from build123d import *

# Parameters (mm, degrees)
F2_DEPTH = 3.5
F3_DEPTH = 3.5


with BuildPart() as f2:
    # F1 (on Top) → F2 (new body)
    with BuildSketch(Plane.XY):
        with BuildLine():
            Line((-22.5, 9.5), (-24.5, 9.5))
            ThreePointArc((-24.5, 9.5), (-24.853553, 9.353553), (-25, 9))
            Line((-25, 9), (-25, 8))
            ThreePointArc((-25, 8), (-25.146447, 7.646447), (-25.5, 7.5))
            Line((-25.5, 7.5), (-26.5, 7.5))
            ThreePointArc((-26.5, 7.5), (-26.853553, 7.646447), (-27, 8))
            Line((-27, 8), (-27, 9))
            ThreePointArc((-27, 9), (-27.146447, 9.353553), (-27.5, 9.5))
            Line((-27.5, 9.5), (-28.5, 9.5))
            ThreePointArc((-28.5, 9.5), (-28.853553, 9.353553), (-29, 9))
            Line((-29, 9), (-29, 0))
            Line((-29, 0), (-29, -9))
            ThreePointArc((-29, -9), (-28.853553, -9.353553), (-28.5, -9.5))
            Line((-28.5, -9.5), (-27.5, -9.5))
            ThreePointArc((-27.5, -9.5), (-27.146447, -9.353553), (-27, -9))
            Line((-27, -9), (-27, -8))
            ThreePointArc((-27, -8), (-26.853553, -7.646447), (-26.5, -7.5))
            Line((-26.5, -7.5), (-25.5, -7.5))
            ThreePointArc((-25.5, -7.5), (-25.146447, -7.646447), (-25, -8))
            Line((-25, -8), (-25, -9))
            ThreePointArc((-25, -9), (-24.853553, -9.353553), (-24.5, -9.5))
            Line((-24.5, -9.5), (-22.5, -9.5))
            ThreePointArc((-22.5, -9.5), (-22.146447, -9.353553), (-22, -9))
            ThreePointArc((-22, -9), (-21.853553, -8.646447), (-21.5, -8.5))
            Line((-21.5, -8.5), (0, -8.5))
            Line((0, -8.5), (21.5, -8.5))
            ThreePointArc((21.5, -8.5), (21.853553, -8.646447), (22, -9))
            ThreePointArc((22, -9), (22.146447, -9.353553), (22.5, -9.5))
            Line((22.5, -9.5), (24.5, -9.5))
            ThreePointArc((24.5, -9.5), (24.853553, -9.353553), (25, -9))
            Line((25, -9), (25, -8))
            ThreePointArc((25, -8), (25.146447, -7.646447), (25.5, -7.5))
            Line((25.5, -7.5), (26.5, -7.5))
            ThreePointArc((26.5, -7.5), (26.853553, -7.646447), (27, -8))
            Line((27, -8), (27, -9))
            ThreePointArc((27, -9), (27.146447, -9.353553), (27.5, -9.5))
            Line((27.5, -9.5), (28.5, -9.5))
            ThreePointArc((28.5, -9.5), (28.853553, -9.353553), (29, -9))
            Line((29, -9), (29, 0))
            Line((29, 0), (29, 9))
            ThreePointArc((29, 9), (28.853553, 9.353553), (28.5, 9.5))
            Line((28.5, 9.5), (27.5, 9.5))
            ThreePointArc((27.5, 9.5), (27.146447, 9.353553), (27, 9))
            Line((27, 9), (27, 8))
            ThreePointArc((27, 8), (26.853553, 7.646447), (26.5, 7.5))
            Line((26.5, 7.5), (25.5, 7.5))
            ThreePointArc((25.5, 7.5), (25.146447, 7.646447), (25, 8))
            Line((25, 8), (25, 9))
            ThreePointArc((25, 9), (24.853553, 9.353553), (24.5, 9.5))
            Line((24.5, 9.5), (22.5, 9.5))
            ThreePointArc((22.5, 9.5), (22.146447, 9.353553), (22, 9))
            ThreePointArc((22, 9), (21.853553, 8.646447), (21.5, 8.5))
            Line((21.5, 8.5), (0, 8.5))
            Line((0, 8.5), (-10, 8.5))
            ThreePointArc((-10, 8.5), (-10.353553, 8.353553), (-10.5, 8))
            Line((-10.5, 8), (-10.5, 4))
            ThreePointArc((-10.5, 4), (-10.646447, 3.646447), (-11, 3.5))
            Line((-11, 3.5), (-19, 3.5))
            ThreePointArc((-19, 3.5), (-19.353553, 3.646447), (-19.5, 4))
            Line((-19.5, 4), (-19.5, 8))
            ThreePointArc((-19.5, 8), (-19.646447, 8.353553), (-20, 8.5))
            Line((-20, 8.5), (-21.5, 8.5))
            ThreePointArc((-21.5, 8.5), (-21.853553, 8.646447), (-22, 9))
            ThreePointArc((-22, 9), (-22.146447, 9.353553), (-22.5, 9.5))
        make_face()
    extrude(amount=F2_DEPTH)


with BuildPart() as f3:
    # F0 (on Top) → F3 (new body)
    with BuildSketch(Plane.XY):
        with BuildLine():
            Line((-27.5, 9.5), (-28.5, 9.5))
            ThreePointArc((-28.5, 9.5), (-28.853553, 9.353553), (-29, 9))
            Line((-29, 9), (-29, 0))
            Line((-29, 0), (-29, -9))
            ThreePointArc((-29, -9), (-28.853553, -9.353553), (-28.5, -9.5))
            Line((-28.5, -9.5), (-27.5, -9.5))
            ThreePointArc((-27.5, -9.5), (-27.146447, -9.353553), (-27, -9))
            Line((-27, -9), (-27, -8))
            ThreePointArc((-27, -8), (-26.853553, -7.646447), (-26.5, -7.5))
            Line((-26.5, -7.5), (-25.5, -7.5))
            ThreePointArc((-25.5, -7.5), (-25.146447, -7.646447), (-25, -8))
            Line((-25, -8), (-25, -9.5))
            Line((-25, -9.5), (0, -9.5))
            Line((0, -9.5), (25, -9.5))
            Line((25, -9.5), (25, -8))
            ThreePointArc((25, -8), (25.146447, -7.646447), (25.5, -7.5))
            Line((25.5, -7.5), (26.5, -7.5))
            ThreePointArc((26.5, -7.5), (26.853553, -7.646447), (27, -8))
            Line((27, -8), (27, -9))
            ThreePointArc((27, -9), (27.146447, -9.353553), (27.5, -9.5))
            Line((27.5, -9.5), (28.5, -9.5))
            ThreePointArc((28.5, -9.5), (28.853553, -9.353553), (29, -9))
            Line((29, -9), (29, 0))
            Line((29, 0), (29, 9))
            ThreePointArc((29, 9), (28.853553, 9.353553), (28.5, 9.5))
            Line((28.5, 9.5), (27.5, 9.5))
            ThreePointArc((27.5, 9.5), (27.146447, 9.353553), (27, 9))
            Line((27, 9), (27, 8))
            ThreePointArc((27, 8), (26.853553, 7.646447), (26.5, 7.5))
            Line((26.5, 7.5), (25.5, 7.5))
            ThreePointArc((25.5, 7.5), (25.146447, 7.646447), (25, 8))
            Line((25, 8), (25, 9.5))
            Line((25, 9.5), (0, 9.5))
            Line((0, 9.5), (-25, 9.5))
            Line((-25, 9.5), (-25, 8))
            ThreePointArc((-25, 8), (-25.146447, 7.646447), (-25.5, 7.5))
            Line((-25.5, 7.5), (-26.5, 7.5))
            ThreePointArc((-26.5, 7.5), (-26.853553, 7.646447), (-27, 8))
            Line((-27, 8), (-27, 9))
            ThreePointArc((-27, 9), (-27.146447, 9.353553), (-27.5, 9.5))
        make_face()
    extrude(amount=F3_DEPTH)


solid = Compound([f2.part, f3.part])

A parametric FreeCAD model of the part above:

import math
import FreeCAD as App
import Part
import Sketcher
from FreeCAD import Vector

doc = App.newDocument("Part")
body = doc.addObject("PartDesign::Body", "Body")

# Sketch on XY plane
sketch1 = body.newObject("Sketcher::SketchObject", "Sketch")
sketch1.AttachmentSupport = (doc.getObject("XY_Plane"), [""])
sketch1.MapMode = "FlatFace"
sketch1.addGeometry([
    Part.LineSegment(Vector(-22.5, 9.5, 0), Vector(-24.5, 9.5, 0)),  # 0
    Part.ArcOfCircle(Part.Circle(Vector(-24.499999, 8.999999, 0), Vector(0, 0, 1), 0.500001), math.radians(90.000153), math.radians(179.999847)),  # 1
    Part.LineSegment(Vector(-25, 9, 0), Vector(-25, 8, 0)),  # 2
    Part.ArcOfCircle(Part.Circle(Vector(-25.500001, 8.000001, 0), Vector(0, 0, 1), 0.500001), math.radians(-89.999847), math.radians(-0.000153)),  # 3
    Part.LineSegment(Vector(-25.5, 7.5, 0), Vector(-26.5, 7.5, 0)),  # 4
    Part.ArcOfCircle(Part.Circle(Vector(-26.499999, 8.000001, 0), Vector(0, 0, 1), 0.500001), math.radians(-179.999847), math.radians(-90.000153)),  # 5
    Part.LineSegment(Vector(-27, 8, 0), Vector(-27, 9, 0)),  # 6
    Part.ArcOfCircle(Part.Circle(Vector(-27.500001, 8.999999, 0), Vector(0, 0, 1), 0.500001), math.radians(0.000153), math.radians(89.999847)),  # 7
    Part.LineSegment(Vector(-27.5, 9.5, 0), Vector(-28.5, 9.5, 0)),  # 8
    Part.ArcOfCircle(Part.Circle(Vector(-28.499999, 8.999999, 0), Vector(0, 0, 1), 0.500001), math.radians(90.000153), math.radians(179.999847)),  # 9
    Part.LineSegment(Vector(-29, 9, 0), Vector(-29, -9, 0)),  # 10
    Part.ArcOfCircle(Part.Circle(Vector(-28.499999, -8.999999, 0), Vector(0, 0, 1), 0.500001), math.radians(-179.999847), math.radians(-90.000153)),  # 11
    Part.LineSegment(Vector(-28.5, -9.5, 0), Vector(-27.5, -9.5, 0)),  # 12
    Part.ArcOfCircle(Part.Circle(Vector(-27.500001, -8.999999, 0), Vector(0, 0, 1), 0.500001), math.radians(-89.999847), math.radians(-0.000153)),  # 13
    Part.LineSegment(Vector(-27, -9, 0), Vector(-27, -8, 0)),  # 14
    Part.ArcOfCircle(Part.Circle(Vector(-26.499999, -8.000001, 0), Vector(0, 0, 1), 0.500001), math.radians(90.000153), math.radians(179.999847)),  # 15
    Part.LineSegment(Vector(-26.5, -7.5, 0), Vector(-25.5, -7.5, 0)),  # 16
    Part.ArcOfCircle(Part.Circle(Vector(-25.500001, -8.000001, 0), Vector(0, 0, 1), 0.500001), math.radians(0.000153), math.radians(89.999847)),  # 17
    Part.LineSegment(Vector(-25, -8, 0), Vector(-25, -9, 0)),  # 18
    Part.ArcOfCircle(Part.Circle(Vector(-24.499999, -8.999999, 0), Vector(0, 0, 1), 0.500001), math.radians(-179.999847), math.radians(-90.000153)),  # 19
    Part.LineSegment(Vector(-24.5, -9.5, 0), Vector(-22.5, -9.5, 0)),  # 20
    Part.ArcOfCircle(Part.Circle(Vector(-22.500001, -8.999999, 0), Vector(0, 0, 1), 0.500001), math.radians(-89.999847), math.radians(-0.000153)),  # 21
    Part.ArcOfCircle(Part.Circle(Vector(-21.499999, -9.000001, 0), Vector(0, 0, 1), 0.500001), math.radians(90.000153), math.radians(179.999847)),  # 22
    Part.LineSegment(Vector(-21.5, -8.5, 0), Vector(21.5, -8.5, 0)),  # 23
    Part.ArcOfCircle(Part.Circle(Vector(21.499999, -9.000001, 0), Vector(0, 0, 1), 0.500001), math.radians(0.000153), math.radians(89.999847)),  # 24
    Part.ArcOfCircle(Part.Circle(Vector(22.500001, -8.999999, 0), Vector(0, 0, 1), 0.500001), math.radians(-179.999847), math.radians(-90.000153)),  # 25
    Part.LineSegment(Vector(22.5, -9.5, 0), Vector(24.5, -9.5, 0)),  # 26
    Part.ArcOfCircle(Part.Circle(Vector(24.499999, -8.999999, 0), Vector(0, 0, 1), 0.500001), math.radians(-89.999847), math.radians(-0.000153)),  # 27
    Part.LineSegment(Vector(25, -9, 0), Vector(25, -8, 0)),  # 28
    Part.ArcOfCircle(Part.Circle(Vector(25.500001, -8.000001, 0), Vector(0, 0, 1), 0.500001), math.radians(90.000153), math.radians(179.999847)),  # 29
    Part.LineSegment(Vector(25.5, -7.5, 0), Vector(26.5, -7.5, 0)),  # 30
    Part.ArcOfCircle(Part.Circle(Vector(26.499999, -8.000001, 0), Vector(0, 0, 1), 0.500001), math.radians(0.000153), math.radians(89.999847)),  # 31
    Part.LineSegment(Vector(27, -8, 0), Vector(27, -9, 0)),  # 32
    Part.ArcOfCircle(Part.Circle(Vector(27.500001, -8.999999, 0), Vector(0, 0, 1), 0.500001), math.radians(-179.999847), math.radians(-90.000153)),  # 33
    Part.LineSegment(Vector(27.5, -9.5, 0), Vector(28.5, -9.5, 0)),  # 34
    Part.ArcOfCircle(Part.Circle(Vector(28.499999, -8.999999, 0), Vector(0, 0, 1), 0.500001), math.radians(-89.999847), math.radians(-0.000153)),  # 35
    Part.LineSegment(Vector(29, -9, 0), Vector(29, 9, 0)),  # 36
    Part.ArcOfCircle(Part.Circle(Vector(28.499999, 8.999999, 0), Vector(0, 0, 1), 0.500001), math.radians(0.000153), math.radians(89.999847)),  # 37
    Part.LineSegment(Vector(28.5, 9.5, 0), Vector(27.5, 9.5, 0)),  # 38
    Part.ArcOfCircle(Part.Circle(Vector(27.500001, 8.999999, 0), Vector(0, 0, 1), 0.500001), math.radians(90.000153), math.radians(179.999847)),  # 39
    Part.LineSegment(Vector(27, 9, 0), Vector(27, 8, 0)),  # 40
    Part.ArcOfCircle(Part.Circle(Vector(26.499999, 8.000001, 0), Vector(0, 0, 1), 0.500001), math.radians(-89.999847), math.radians(-0.000153)),  # 41
    Part.LineSegment(Vector(26.5, 7.5, 0), Vector(25.5, 7.5, 0)),  # 42
    Part.ArcOfCircle(Part.Circle(Vector(25.500001, 8.000001, 0), Vector(0, 0, 1), 0.500001), math.radians(-179.999847), math.radians(-90.000153)),  # 43
    Part.LineSegment(Vector(25, 8, 0), Vector(25, 9, 0)),  # 44
    Part.ArcOfCircle(Part.Circle(Vector(24.499999, 8.999999, 0), Vector(0, 0, 1), 0.500001), math.radians(0.000153), math.radians(89.999847)),  # 45
    Part.LineSegment(Vector(24.5, 9.5, 0), Vector(22.5, 9.5, 0)),  # 46
    Part.ArcOfCircle(Part.Circle(Vector(22.500001, 8.999999, 0), Vector(0, 0, 1), 0.500001), math.radians(90.000153), math.radians(179.999847)),  # 47
    Part.ArcOfCircle(Part.Circle(Vector(21.499999, 9.000001, 0), Vector(0, 0, 1), 0.500001), math.radians(-89.999847), math.radians(-0.000153)),  # 48
    Part.LineSegment(Vector(21.5, 8.5, 0), Vector(-10, 8.5, 0)),  # 49
    Part.ArcOfCircle(Part.Circle(Vector(-9.999999, 7.999999, 0), Vector(0, 0, 1), 0.500001), math.radians(90.000153), math.radians(179.999847)),  # 50
    Part.LineSegment(Vector(-10.5, 8, 0), Vector(-10.5, 4, 0)),  # 51
    Part.ArcOfCircle(Part.Circle(Vector(-11.000001, 4.000001, 0), Vector(0, 0, 1), 0.500001), math.radians(-89.999847), math.radians(-0.000153)),  # 52
    Part.LineSegment(Vector(-11, 3.5, 0), Vector(-19, 3.5, 0)),  # 53
    Part.ArcOfCircle(Part.Circle(Vector(-18.999999, 4.000001, 0), Vector(0, 0, 1), 0.500001), math.radians(-179.999847), math.radians(-90.000153)),  # 54
    Part.LineSegment(Vector(-19.5, 4, 0), Vector(-19.5, 8, 0)),  # 55
    Part.ArcOfCircle(Part.Circle(Vector(-20.000001, 7.999999, 0), Vector(0, 0, 1), 0.500001), math.radians(0.000153), math.radians(89.999847)),  # 56
    Part.LineSegment(Vector(-20, 8.5, 0), Vector(-21.5, 8.5, 0)),  # 57
    Part.ArcOfCircle(Part.Circle(Vector(-21.499999, 9.000001, 0), Vector(0, 0, 1), 0.500001), math.radians(-179.999847), math.radians(-90.000153)),  # 58
    Part.ArcOfCircle(Part.Circle(Vector(-22.500001, 8.999999, 0), Vector(0, 0, 1), 0.500001), math.radians(0.000153), math.radians(89.999847)),  # 59
], False)
sketch1.addConstraint([
    Sketcher.Constraint("Coincident", 0, 2, 1, 1),
    Sketcher.Constraint("Coincident", 1, 2, 2, 1),
    Sketcher.Constraint("Coincident", 2, 2, 3, 2),
    Sketcher.Constraint("Coincident", 3, 1, 4, 1),
    Sketcher.Constraint("Coincident", 4, 2, 5, 2),
    Sketcher.Constraint("Coincident", 5, 1, 6, 1),
    Sketcher.Constraint("Coincident", 6, 2, 7, 1),
    Sketcher.Constraint("Coincident", 7, 2, 8, 1),
    Sketcher.Constraint("Coincident", 8, 2, 9, 1),
    Sketcher.Constraint("Coincident", 9, 2, 10, 1),
    Sketcher.Constraint("Coincident", 10, 2, 11, 1),
    Sketcher.Constraint("Coincident", 11, 2, 12, 1),
    Sketcher.Constraint("Coincident", 12, 2, 13, 1),
    Sketcher.Constraint("Coincident", 13, 2, 14, 1),
    Sketcher.Constraint("Coincident", 14, 2, 15, 2),
    Sketcher.Constraint("Coincident", 15, 1, 16, 1),
    Sketcher.Constraint("Coincident", 16, 2, 17, 2),
    Sketcher.Constraint("Coincident", 17, 1, 18, 1),
    Sketcher.Constraint("Coincident", 18, 2, 19, 1),
    Sketcher.Constraint("Coincident", 19, 2, 20, 1),
    Sketcher.Constraint("Coincident", 20, 2, 21, 1),
    Sketcher.Constraint("Tangent", 21, 2, 22, 2),
    Sketcher.Constraint("Coincident", 22, 1, 23, 1),
    Sketcher.Constraint("Coincident", 23, 2, 24, 2),
    Sketcher.Constraint("Tangent", 24, 1, 25, 1),
    Sketcher.Constraint("Coincident", 25, 2, 26, 1),
    Sketcher.Constraint("Coincident", 26, 2, 27, 1),
    Sketcher.Constraint("Coincident", 27, 2, 28, 1),
    Sketcher.Constraint("Coincident", 28, 2, 29, 2),
    Sketcher.Constraint("Coincident", 29, 1, 30, 1),
    Sketcher.Constraint("Coincident", 30, 2, 31, 2),
    Sketcher.Constraint("Coincident", 31, 1, 32, 1),
    Sketcher.Constraint("Coincident", 32, 2, 33, 1),
    Sketcher.Constraint("Coincident", 33, 2, 34, 1),
    Sketcher.Constraint("Coincident", 34, 2, 35, 1),
    Sketcher.Constraint("Coincident", 35, 2, 36, 1),
    Sketcher.Constraint("Coincident", 36, 2, 37, 1),
    Sketcher.Constraint("Coincident", 37, 2, 38, 1),
    Sketcher.Constraint("Coincident", 38, 2, 39, 1),
    Sketcher.Constraint("Coincident", 39, 2, 40, 1),
    Sketcher.Constraint("Coincident", 40, 2, 41, 2),
    Sketcher.Constraint("Coincident", 41, 1, 42, 1),
    Sketcher.Constraint("Coincident", 42, 2, 43, 2),
    Sketcher.Constraint("Coincident", 43, 1, 44, 1),
    Sketcher.Constraint("Coincident", 44, 2, 45, 1),
    Sketcher.Constraint("Coincident", 45, 2, 46, 1),
    Sketcher.Constraint("Coincident", 46, 2, 47, 1),
    Sketcher.Constraint("Tangent", 47, 2, 48, 2),
    Sketcher.Constraint("Coincident", 48, 1, 49, 1),
    Sketcher.Constraint("Coincident", 49, 2, 50, 1),
    Sketcher.Constraint("Coincident", 50, 2, 51, 1),
    Sketcher.Constraint("Coincident", 51, 2, 52, 2),
    Sketcher.Constraint("Coincident", 52, 1, 53, 1),
    Sketcher.Constraint("Coincident", 53, 2, 54, 2),
    Sketcher.Constraint("Coincident", 54, 1, 55, 1),
    Sketcher.Constraint("Coincident", 55, 2, 56, 1),
    Sketcher.Constraint("Coincident", 56, 2, 57, 1),
    Sketcher.Constraint("Coincident", 57, 2, 58, 2),
    Sketcher.Constraint("Tangent", 58, 1, 59, 1),
    Sketcher.Constraint("Coincident", 59, 2, 0, 1),
    Sketcher.Constraint("Horizontal", 0),
    Sketcher.Constraint("Vertical", 2),
    Sketcher.Constraint("Horizontal", 4),
    Sketcher.Constraint("Vertical", 6),
    Sketcher.Constraint("Horizontal", 8),
    Sketcher.Constraint("Vertical", 10),
    Sketcher.Constraint("Horizontal", 12),
    Sketcher.Constraint("Vertical", 14),
    Sketcher.Constraint("Horizontal", 16),
    Sketcher.Constraint("Vertical", 18),
    Sketcher.Constraint("Horizontal", 20),
    Sketcher.Constraint("Horizontal", 23),
    Sketcher.Constraint("Horizontal", 26),
    Sketcher.Constraint("Vertical", 28),
    Sketcher.Constraint("Horizontal", 30),
    Sketcher.Constraint("Vertical", 32),
    Sketcher.Constraint("Horizontal", 34),
    Sketcher.Constraint("Vertical", 36),
    Sketcher.Constraint("Horizontal", 38),
    Sketcher.Constraint("Vertical", 40),
    Sketcher.Constraint("Horizontal", 42),
    Sketcher.Constraint("Vertical", 44),
    Sketcher.Constraint("Horizontal", 46),
    Sketcher.Constraint("Horizontal", 49),
    Sketcher.Constraint("Vertical", 51),
    Sketcher.Constraint("Horizontal", 53),
    Sketcher.Constraint("Vertical", 55),
    Sketcher.Constraint("Horizontal", 57),
    Sketcher.Constraint("Equal", 1, 3),
    Sketcher.Constraint("Equal", 3, 5),
    Sketcher.Constraint("Equal", 5, 7),
    Sketcher.Constraint("Equal", 7, 9),
    Sketcher.Constraint("Equal", 9, 11),
    Sketcher.Constraint("Equal", 11, 13),
    Sketcher.Constraint("Equal", 13, 15),
    Sketcher.Constraint("Equal", 15, 17),
    Sketcher.Constraint("Equal", 17, 19),
    Sketcher.Constraint("Equal", 19, 21),
    Sketcher.Constraint("Equal", 21, 22),
    Sketcher.Constraint("Equal", 22, 24),
    Sketcher.Constraint("Equal", 24, 25),
    Sketcher.Constraint("Equal", 25, 27),
    Sketcher.Constraint("Equal", 27, 29),
    Sketcher.Constraint("Equal", 29, 31),
    Sketcher.Constraint("Equal", 31, 33),
    Sketcher.Constraint("Equal", 33, 35),
    Sketcher.Constraint("Equal", 35, 37),
    Sketcher.Constraint("Equal", 37, 39),
    Sketcher.Constraint("Equal", 39, 41),
    Sketcher.Constraint("Equal", 41, 43),
    Sketcher.Constraint("Equal", 43, 45),
    Sketcher.Constraint("Equal", 45, 47),
    Sketcher.Constraint("Equal", 47, 48),
    Sketcher.Constraint("Equal", 48, 50),
    Sketcher.Constraint("Equal", 50, 52),
    Sketcher.Constraint("Equal", 52, 54),
    Sketcher.Constraint("Equal", 54, 56),
    Sketcher.Constraint("Equal", 56, 58),
    Sketcher.Constraint("Equal", 58, 59),
    Sketcher.Constraint("Symmetric", 1, 3, 27, 3, -1, 1),
    Sketcher.Constraint("Symmetric", 5, 3, 31, 3, -1, 1),
    Sketcher.Constraint("Symmetric", 9, 3, 35, 3, -1, 1),
    Sketcher.Constraint("Symmetric", 13, 3, 39, 3, -1, 1),
    Sketcher.Constraint("Symmetric", 17, 3, 43, 3, -1, 1),
    Sketcher.Constraint("Symmetric", 21, 3, 47, 3, -1, 1),
    Sketcher.Constraint("Symmetric", 24, 3, 58, 3, -1, 1),
    Sketcher.Constraint("Symmetric", 22, 1, 48, 1, -1, 1),
    Sketcher.Constraint("Symmetric", 21, 3, 25, 3, -2),
    Sketcher.Constraint("Symmetric", 17, 3, 29, 3, -2),
    Sketcher.Constraint("Symmetric", 13, 3, 33, 3, -2),
    Sketcher.Constraint("Horizontal", 1, 3, 7, 3),
    Sketcher.Constraint("Horizontal", 59, 3, 1, 2),
    Sketcher.Constraint("Horizontal", 56, 3, 2, 2),
    Sketcher.Constraint("Horizontal", 2, 2, 5, 1),
    Sketcher.Constraint("Horizontal", 1, 2, 6, 2),
    Sketcher.Constraint("Horizontal", 6, 2, 9, 2),
    Sketcher.Constraint("Horizontal", 35, 3, 10, 2),
    Sketcher.Constraint("Horizontal", 10, 2, 13, 2),
    Sketcher.Constraint("Horizontal", 31, 3, 14, 2),
    Sketcher.Constraint("Horizontal", 14, 2, 17, 1),
    Sketcher.Constraint("Horizontal", 13, 2, 18, 2),
    Sketcher.Constraint("Horizontal", 18, 2, 21, 2),
    Sketcher.Constraint("Horizontal", 24, 1, 27, 2),
    Sketcher.Constraint("Horizontal", 17, 1, 28, 2),
    Sketcher.Constraint("Horizontal", 28, 2, 31, 1),
    Sketcher.Constraint("Horizontal", 27, 2, 32, 2),
    Sketcher.Constraint("Horizontal", 32, 2, 35, 2),
    Sketcher.Constraint("Horizontal", 9, 2, 36, 2),
    Sketcher.Constraint("Horizontal", 36, 2, 39, 2),
    Sketcher.Constraint("Horizontal", 5, 1, 40, 2),
    Sketcher.Constraint("Horizontal", 40, 2, 43, 1),
    Sketcher.Constraint("Horizontal", 39, 2, 44, 2),
    Sketcher.Constraint("Horizontal", 43, 1, 50, 2),
    Sketcher.Constraint("Horizontal", 54, 3, 51, 2),
    Sketcher.Constraint("Horizontal", 51, 2, 54, 1),
    Sketcher.Constraint("Horizontal", 50, 2, 55, 2),
    Sketcher.Constraint("Vertical", 19, 3, 0, 2),
    Sketcher.Constraint("Vertical", 17, 3, 3, 1),
    Sketcher.Constraint("Vertical", 15, 3, 4, 2),
    Sketcher.Constraint("Vertical", 13, 3, 7, 2),
    Sketcher.Constraint("Vertical", 11, 3, 8, 2),
    Sketcher.Constraint("Vertical", 8, 2, 11, 2),
    Sketcher.Constraint("Vertical", 7, 2, 12, 2),
    Sketcher.Constraint("Vertical", 4, 2, 15, 1),
    Sketcher.Constraint("Vertical", 3, 1, 16, 2),
    Sketcher.Constraint("Vertical", 0, 2, 19, 2),
    Sketcher.Constraint("Vertical", 59, 3, 20, 2),
    Sketcher.Constraint("Vertical", 58, 3, 22, 1),
    Sketcher.Constraint("Vertical", 48, 3, 23, 2),
    Sketcher.Constraint("Vertical", 47, 3, 25, 2),
    Sketcher.Constraint("Vertical", 45, 3, 26, 2),
    Sketcher.Constraint("Vertical", 43, 3, 29, 1),
    Sketcher.Constraint("Vertical", 41, 3, 30, 2),
    Sketcher.Constraint("Vertical", 39, 3, 33, 2),
    Sketcher.Constraint("Vertical", 37, 3, 34, 2),
    Sketcher.Constraint("Vertical", 34, 2, 37, 2),
    Sketcher.Constraint("Vertical", 33, 2, 38, 2),
    Sketcher.Constraint("Vertical", 30, 2, 41, 1),
    Sketcher.Constraint("Vertical", 29, 1, 42, 2),
    Sketcher.Constraint("Vertical", 26, 2, 45, 2),
    Sketcher.Constraint("Vertical", 25, 2, 46, 2),
    Sketcher.Constraint("Vertical", 50, 3, 49, 2),
    Sketcher.Constraint("Vertical", 54, 3, 53, 2),
    Sketcher.Constraint("Vertical", 22, 1, 57, 2),
    Sketcher.Constraint("Vertical", 20, 2, 59, 2),
    Sketcher.Constraint("Equal", 4, 8),
    Sketcher.Constraint("Equal", 42, 2),
    Sketcher.Constraint("Equal", 6, 14),
    Sketcher.Constraint("Radius", 1, 0.500001),
    Sketcher.Constraint("DistanceX", 0, 2, 0, 1, 2.0),
    Sketcher.Constraint("DistanceX", 23, 1, 23, 2, 43.0),
    Sketcher.Constraint("DistanceX", 53, 2, 53, 1, 8.0),
    Sketcher.Constraint("DistanceY", 10, 2, 10, 1, 18.0),
    Sketcher.Constraint("DistanceY", 51, 2, 51, 1, 4.0),
    Sketcher.Constraint("DistanceX", 49, 2, 49, 1, 31.5),
    Sketcher.Constraint("DistanceX", 57, 2, 57, 1, 1.5),
    Sketcher.Constraint("DistanceX", 54, 3, -1, 1, 18.999999),
])
pad1 = body.newObject("PartDesign::Pad", "Pad")
pad1.Profile = sketch1
pad1.Length = 3.5
body2 = doc.addObject("PartDesign::Body", "Body001")

# Sketch on XY plane
sketch2 = body2.newObject("Sketcher::SketchObject", "Sketch001")
sketch2.AttachmentSupport = (doc.getObject("XY_Plane001"), [""])
sketch2.MapMode = "FlatFace"
sketch2.addGeometry([
    Part.LineSegment(Vector(-27.5, 9.5, 0), Vector(-28.5, 9.5, 0)),  # 0
    Part.ArcOfCircle(Part.Circle(Vector(-28.499999, 8.999999, 0), Vector(0, 0, 1), 0.500001), math.radians(90.000153), math.radians(179.999847)),  # 1
    Part.LineSegment(Vector(-29, 9, 0), Vector(-29, -9, 0)),  # 2
    Part.ArcOfCircle(Part.Circle(Vector(-28.499999, -8.999999, 0), Vector(0, 0, 1), 0.500001), math.radians(-179.999847), math.radians(-90.000153)),  # 3
    Part.LineSegment(Vector(-28.5, -9.5, 0), Vector(-27.5, -9.5, 0)),  # 4
    Part.ArcOfCircle(Part.Circle(Vector(-27.500001, -8.999999, 0), Vector(0, 0, 1), 0.500001), math.radians(-89.999847), math.radians(-0.000153)),  # 5
    Part.LineSegment(Vector(-27, -9, 0), Vector(-27, -8, 0)),  # 6
    Part.ArcOfCircle(Part.Circle(Vector(-26.499999, -8.000001, 0), Vector(0, 0, 1), 0.500001), math.radians(90.000153), math.radians(179.999847)),  # 7
    Part.LineSegment(Vector(-26.5, -7.5, 0), Vector(-25.5, -7.5, 0)),  # 8
    Part.ArcOfCircle(Part.Circle(Vector(-25.500001, -8.000001, 0), Vector(0, 0, 1), 0.500001), math.radians(0.000153), math.radians(89.999847)),  # 9
    Part.LineSegment(Vector(-25, -8, 0), Vector(-25, -9.5, 0)),  # 10
    Part.LineSegment(Vector(-25, -9.5, 0), Vector(25, -9.5, 0)),  # 11
    Part.LineSegment(Vector(25, -9.5, 0), Vector(25, -8, 0)),  # 12
    Part.ArcOfCircle(Part.Circle(Vector(25.500001, -8.000001, 0), Vector(0, 0, 1), 0.500001), math.radians(90.000153), math.radians(179.999847)),  # 13
    Part.LineSegment(Vector(25.5, -7.5, 0), Vector(26.5, -7.5, 0)),  # 14
    Part.ArcOfCircle(Part.Circle(Vector(26.499999, -8.000001, 0), Vector(0, 0, 1), 0.500001), math.radians(0.000153), math.radians(89.999847)),  # 15
    Part.LineSegment(Vector(27, -8, 0), Vector(27, -9, 0)),  # 16
    Part.ArcOfCircle(Part.Circle(Vector(27.500001, -8.999999, 0), Vector(0, 0, 1), 0.500001), math.radians(-179.999847), math.radians(-90.000153)),  # 17
    Part.LineSegment(Vector(27.5, -9.5, 0), Vector(28.5, -9.5, 0)),  # 18
    Part.ArcOfCircle(Part.Circle(Vector(28.499999, -8.999999, 0), Vector(0, 0, 1), 0.500001), math.radians(-89.999847), math.radians(-0.000153)),  # 19
    Part.LineSegment(Vector(29, -9, 0), Vector(29, 9, 0)),  # 20
    Part.ArcOfCircle(Part.Circle(Vector(28.499999, 8.999999, 0), Vector(0, 0, 1), 0.500001), math.radians(0.000153), math.radians(89.999847)),  # 21
    Part.LineSegment(Vector(28.5, 9.5, 0), Vector(27.5, 9.5, 0)),  # 22
    Part.ArcOfCircle(Part.Circle(Vector(27.500001, 8.999999, 0), Vector(0, 0, 1), 0.500001), math.radians(90.000153), math.radians(179.999847)),  # 23
    Part.LineSegment(Vector(27, 9, 0), Vector(27, 8, 0)),  # 24
    Part.ArcOfCircle(Part.Circle(Vector(26.499999, 8.000001, 0), Vector(0, 0, 1), 0.500001), math.radians(-89.999847), math.radians(-0.000153)),  # 25
    Part.LineSegment(Vector(26.5, 7.5, 0), Vector(25.5, 7.5, 0)),  # 26
    Part.ArcOfCircle(Part.Circle(Vector(25.500001, 8.000001, 0), Vector(0, 0, 1), 0.500001), math.radians(-179.999847), math.radians(-90.000153)),  # 27
    Part.LineSegment(Vector(25, 8, 0), Vector(25, 9.5, 0)),  # 28
    Part.LineSegment(Vector(25, 9.5, 0), Vector(-25, 9.5, 0)),  # 29
    Part.LineSegment(Vector(-25, 9.5, 0), Vector(-25, 8, 0)),  # 30
    Part.ArcOfCircle(Part.Circle(Vector(-25.500001, 8.000001, 0), Vector(0, 0, 1), 0.500001), math.radians(-89.999847), math.radians(-0.000153)),  # 31
    Part.LineSegment(Vector(-25.5, 7.5, 0), Vector(-26.5, 7.5, 0)),  # 32
    Part.ArcOfCircle(Part.Circle(Vector(-26.499999, 8.000001, 0), Vector(0, 0, 1), 0.500001), math.radians(-179.999847), math.radians(-90.000153)),  # 33
    Part.LineSegment(Vector(-27, 8, 0), Vector(-27, 9, 0)),  # 34
    Part.ArcOfCircle(Part.Circle(Vector(-27.500001, 8.999999, 0), Vector(0, 0, 1), 0.500001), math.radians(0.000153), math.radians(89.999847)),  # 35
], False)
sketch2.addConstraint([
    Sketcher.Constraint("Coincident", 0, 2, 1, 1),
    Sketcher.Constraint("Coincident", 1, 2, 2, 1),
    Sketcher.Constraint("Coincident", 2, 2, 3, 1),
    Sketcher.Constraint("Coincident", 3, 2, 4, 1),
    Sketcher.Constraint("Coincident", 4, 2, 5, 1),
    Sketcher.Constraint("Coincident", 5, 2, 6, 1),
    Sketcher.Constraint("Coincident", 6, 2, 7, 2),
    Sketcher.Constraint("Coincident", 7, 1, 8, 1),
    Sketcher.Constraint("Coincident", 8, 2, 9, 2),
    Sketcher.Constraint("Coincident", 9, 1, 10, 1),
    Sketcher.Constraint("Coincident", 10, 2, 11, 1),
    Sketcher.Constraint("Coincident", 11, 2, 12, 1),
    Sketcher.Constraint("Coincident", 12, 2, 13, 2),
    Sketcher.Constraint("Coincident", 13, 1, 14, 1),
    Sketcher.Constraint("Coincident", 14, 2, 15, 2),
    Sketcher.Constraint("Coincident", 15, 1, 16, 1),
    Sketcher.Constraint("Coincident", 16, 2, 17, 1),
    Sketcher.Constraint("Coincident", 17, 2, 18, 1),
    Sketcher.Constraint("Coincident", 18, 2, 19, 1),
    Sketcher.Constraint("Coincident", 19, 2, 20, 1),
    Sketcher.Constraint("Coincident", 20, 2, 21, 1),
    Sketcher.Constraint("Coincident", 21, 2, 22, 1),
    Sketcher.Constraint("Coincident", 22, 2, 23, 1),
    Sketcher.Constraint("Coincident", 23, 2, 24, 1),
    Sketcher.Constraint("Coincident", 24, 2, 25, 2),
    Sketcher.Constraint("Coincident", 25, 1, 26, 1),
    Sketcher.Constraint("Coincident", 26, 2, 27, 2),
    Sketcher.Constraint("Coincident", 27, 1, 28, 1),
    Sketcher.Constraint("Coincident", 28, 2, 29, 1),
    Sketcher.Constraint("Coincident", 29, 2, 30, 1),
    Sketcher.Constraint("Coincident", 30, 2, 31, 2),
    Sketcher.Constraint("Coincident", 31, 1, 32, 1),
    Sketcher.Constraint("Coincident", 32, 2, 33, 2),
    Sketcher.Constraint("Coincident", 33, 1, 34, 1),
    Sketcher.Constraint("Coincident", 34, 2, 35, 1),
    Sketcher.Constraint("Coincident", 35, 2, 0, 1),
    Sketcher.Constraint("Horizontal", 0),
    Sketcher.Constraint("Vertical", 2),
    Sketcher.Constraint("Horizontal", 4),
    Sketcher.Constraint("Vertical", 6),
    Sketcher.Constraint("Horizontal", 8),
    Sketcher.Constraint("Vertical", 10),
    Sketcher.Constraint("Horizontal", 11),
    Sketcher.Constraint("Vertical", 12),
    Sketcher.Constraint("Horizontal", 14),
    Sketcher.Constraint("Vertical", 16),
    Sketcher.Constraint("Horizontal", 18),
    Sketcher.Constraint("Vertical", 20),
    Sketcher.Constraint("Horizontal", 22),
    Sketcher.Constraint("Vertical", 24),
    Sketcher.Constraint("Horizontal", 26),
    Sketcher.Constraint("Vertical", 28),
    Sketcher.Constraint("Horizontal", 29),
    Sketcher.Constraint("Vertical", 30),
    Sketcher.Constraint("Horizontal", 32),
    Sketcher.Constraint("Vertical", 34),
    Sketcher.Constraint("Equal", 1, 3),
    Sketcher.Constraint("Equal", 3, 5),
    Sketcher.Constraint("Equal", 5, 7),
    Sketcher.Constraint("Equal", 7, 9),
    Sketcher.Constraint("Equal", 9, 13),
    Sketcher.Constraint("Equal", 13, 15),
    Sketcher.Constraint("Equal", 15, 17),
    Sketcher.Constraint("Equal", 17, 19),
    Sketcher.Constraint("Equal", 19, 21),
    Sketcher.Constraint("Equal", 21, 23),
    Sketcher.Constraint("Equal", 23, 25),
    Sketcher.Constraint("Equal", 25, 27),
    Sketcher.Constraint("Equal", 27, 31),
    Sketcher.Constraint("Equal", 31, 33),
    Sketcher.Constraint("Equal", 33, 35),
    Sketcher.Constraint("Symmetric", 1, 3, 19, 3, -1, 1),
    Sketcher.Constraint("Symmetric", 5, 3, 23, 3, -1, 1),
    Sketcher.Constraint("Symmetric", 9, 3, 27, 3, -1, 1),
    Sketcher.Constraint("Symmetric", 13, 3, 31, 3, -1, 1),
    Sketcher.Constraint("Symmetric", 15, 1, 33, 1, -1, 1),
    Sketcher.Constraint("Symmetric", 9, 3, 13, 3, -2),
    Sketcher.Constraint("Symmetric", 5, 3, 17, 3, -2),
    Sketcher.Constraint("Horizontal", 35, 3, 1, 2),
    Sketcher.Constraint("Horizontal", 19, 3, 2, 2),
    Sketcher.Constraint("Horizontal", 2, 2, 5, 2),
    Sketcher.Constraint("Horizontal", 15, 3, 6, 2),
    Sketcher.Constraint("Horizontal", 6, 2, 9, 1),
    Sketcher.Constraint("Horizontal", 4, 2, 10, 2),
    Sketcher.Constraint("Horizontal", 9, 1, 12, 2),
    Sketcher.Constraint("Horizontal", 12, 2, 15, 1),
    Sketcher.Constraint("Horizontal", 5, 2, 16, 2),
    Sketcher.Constraint("Horizontal", 16, 2, 19, 2),
    Sketcher.Constraint("Horizontal", 1, 2, 20, 2),
    Sketcher.Constraint("Horizontal", 20, 2, 23, 2),
    Sketcher.Constraint("Horizontal", 33, 3, 24, 2),
    Sketcher.Constraint("Horizontal", 24, 2, 27, 1),
    Sketcher.Constraint("Horizontal", 22, 2, 28, 2),
    Sketcher.Constraint("Horizontal", 27, 1, 30, 2),
    Sketcher.Constraint("Horizontal", 23, 2, 34, 2),
    Sketcher.Constraint("Vertical", 3, 3, 0, 2),
    Sketcher.Constraint("Vertical", 0, 2, 3, 2),
    Sketcher.Constraint("Vertical", 35, 3, 4, 2),
    Sketcher.Constraint("Vertical", 33, 3, 7, 1),
    Sketcher.Constraint("Vertical", 31, 3, 8, 2),
    Sketcher.Constraint("Vertical", 27, 3, 13, 1),
    Sketcher.Constraint("Vertical", 25, 3, 14, 2),
    Sketcher.Constraint("Vertical", 23, 3, 17, 2),
    Sketcher.Constraint("Vertical", 21, 3, 18, 2),
    Sketcher.Constraint("Vertical", 18, 2, 21, 2),
    Sketcher.Constraint("Vertical", 17, 2, 22, 2),
    Sketcher.Constraint("Vertical", 14, 2, 25, 1),
    Sketcher.Constraint("Vertical", 13, 1, 26, 2),
    Sketcher.Constraint("Vertical", 8, 2, 31, 1),
    Sketcher.Constraint("Vertical", 7, 1, 32, 2),
    Sketcher.Constraint("Vertical", 4, 2, 35, 2),
    Sketcher.Constraint("Equal", 4, 8),
    Sketcher.Constraint("Equal", 32, 6),
    Sketcher.Constraint("Radius", 1, 0.500001),
    Sketcher.Constraint("DistanceX", 0, 2, 0, 1, 1.0),
    Sketcher.Constraint("DistanceX", 11, 1, 11, 2, 50.0),
    Sketcher.Constraint("DistanceY", 2, 2, 2, 1, 18.0),
])
pad2 = body2.newObject("PartDesign::Pad", "Pad001")
pad2.Profile = sketch2
pad2.Length = 3.5

doc.recompute()
